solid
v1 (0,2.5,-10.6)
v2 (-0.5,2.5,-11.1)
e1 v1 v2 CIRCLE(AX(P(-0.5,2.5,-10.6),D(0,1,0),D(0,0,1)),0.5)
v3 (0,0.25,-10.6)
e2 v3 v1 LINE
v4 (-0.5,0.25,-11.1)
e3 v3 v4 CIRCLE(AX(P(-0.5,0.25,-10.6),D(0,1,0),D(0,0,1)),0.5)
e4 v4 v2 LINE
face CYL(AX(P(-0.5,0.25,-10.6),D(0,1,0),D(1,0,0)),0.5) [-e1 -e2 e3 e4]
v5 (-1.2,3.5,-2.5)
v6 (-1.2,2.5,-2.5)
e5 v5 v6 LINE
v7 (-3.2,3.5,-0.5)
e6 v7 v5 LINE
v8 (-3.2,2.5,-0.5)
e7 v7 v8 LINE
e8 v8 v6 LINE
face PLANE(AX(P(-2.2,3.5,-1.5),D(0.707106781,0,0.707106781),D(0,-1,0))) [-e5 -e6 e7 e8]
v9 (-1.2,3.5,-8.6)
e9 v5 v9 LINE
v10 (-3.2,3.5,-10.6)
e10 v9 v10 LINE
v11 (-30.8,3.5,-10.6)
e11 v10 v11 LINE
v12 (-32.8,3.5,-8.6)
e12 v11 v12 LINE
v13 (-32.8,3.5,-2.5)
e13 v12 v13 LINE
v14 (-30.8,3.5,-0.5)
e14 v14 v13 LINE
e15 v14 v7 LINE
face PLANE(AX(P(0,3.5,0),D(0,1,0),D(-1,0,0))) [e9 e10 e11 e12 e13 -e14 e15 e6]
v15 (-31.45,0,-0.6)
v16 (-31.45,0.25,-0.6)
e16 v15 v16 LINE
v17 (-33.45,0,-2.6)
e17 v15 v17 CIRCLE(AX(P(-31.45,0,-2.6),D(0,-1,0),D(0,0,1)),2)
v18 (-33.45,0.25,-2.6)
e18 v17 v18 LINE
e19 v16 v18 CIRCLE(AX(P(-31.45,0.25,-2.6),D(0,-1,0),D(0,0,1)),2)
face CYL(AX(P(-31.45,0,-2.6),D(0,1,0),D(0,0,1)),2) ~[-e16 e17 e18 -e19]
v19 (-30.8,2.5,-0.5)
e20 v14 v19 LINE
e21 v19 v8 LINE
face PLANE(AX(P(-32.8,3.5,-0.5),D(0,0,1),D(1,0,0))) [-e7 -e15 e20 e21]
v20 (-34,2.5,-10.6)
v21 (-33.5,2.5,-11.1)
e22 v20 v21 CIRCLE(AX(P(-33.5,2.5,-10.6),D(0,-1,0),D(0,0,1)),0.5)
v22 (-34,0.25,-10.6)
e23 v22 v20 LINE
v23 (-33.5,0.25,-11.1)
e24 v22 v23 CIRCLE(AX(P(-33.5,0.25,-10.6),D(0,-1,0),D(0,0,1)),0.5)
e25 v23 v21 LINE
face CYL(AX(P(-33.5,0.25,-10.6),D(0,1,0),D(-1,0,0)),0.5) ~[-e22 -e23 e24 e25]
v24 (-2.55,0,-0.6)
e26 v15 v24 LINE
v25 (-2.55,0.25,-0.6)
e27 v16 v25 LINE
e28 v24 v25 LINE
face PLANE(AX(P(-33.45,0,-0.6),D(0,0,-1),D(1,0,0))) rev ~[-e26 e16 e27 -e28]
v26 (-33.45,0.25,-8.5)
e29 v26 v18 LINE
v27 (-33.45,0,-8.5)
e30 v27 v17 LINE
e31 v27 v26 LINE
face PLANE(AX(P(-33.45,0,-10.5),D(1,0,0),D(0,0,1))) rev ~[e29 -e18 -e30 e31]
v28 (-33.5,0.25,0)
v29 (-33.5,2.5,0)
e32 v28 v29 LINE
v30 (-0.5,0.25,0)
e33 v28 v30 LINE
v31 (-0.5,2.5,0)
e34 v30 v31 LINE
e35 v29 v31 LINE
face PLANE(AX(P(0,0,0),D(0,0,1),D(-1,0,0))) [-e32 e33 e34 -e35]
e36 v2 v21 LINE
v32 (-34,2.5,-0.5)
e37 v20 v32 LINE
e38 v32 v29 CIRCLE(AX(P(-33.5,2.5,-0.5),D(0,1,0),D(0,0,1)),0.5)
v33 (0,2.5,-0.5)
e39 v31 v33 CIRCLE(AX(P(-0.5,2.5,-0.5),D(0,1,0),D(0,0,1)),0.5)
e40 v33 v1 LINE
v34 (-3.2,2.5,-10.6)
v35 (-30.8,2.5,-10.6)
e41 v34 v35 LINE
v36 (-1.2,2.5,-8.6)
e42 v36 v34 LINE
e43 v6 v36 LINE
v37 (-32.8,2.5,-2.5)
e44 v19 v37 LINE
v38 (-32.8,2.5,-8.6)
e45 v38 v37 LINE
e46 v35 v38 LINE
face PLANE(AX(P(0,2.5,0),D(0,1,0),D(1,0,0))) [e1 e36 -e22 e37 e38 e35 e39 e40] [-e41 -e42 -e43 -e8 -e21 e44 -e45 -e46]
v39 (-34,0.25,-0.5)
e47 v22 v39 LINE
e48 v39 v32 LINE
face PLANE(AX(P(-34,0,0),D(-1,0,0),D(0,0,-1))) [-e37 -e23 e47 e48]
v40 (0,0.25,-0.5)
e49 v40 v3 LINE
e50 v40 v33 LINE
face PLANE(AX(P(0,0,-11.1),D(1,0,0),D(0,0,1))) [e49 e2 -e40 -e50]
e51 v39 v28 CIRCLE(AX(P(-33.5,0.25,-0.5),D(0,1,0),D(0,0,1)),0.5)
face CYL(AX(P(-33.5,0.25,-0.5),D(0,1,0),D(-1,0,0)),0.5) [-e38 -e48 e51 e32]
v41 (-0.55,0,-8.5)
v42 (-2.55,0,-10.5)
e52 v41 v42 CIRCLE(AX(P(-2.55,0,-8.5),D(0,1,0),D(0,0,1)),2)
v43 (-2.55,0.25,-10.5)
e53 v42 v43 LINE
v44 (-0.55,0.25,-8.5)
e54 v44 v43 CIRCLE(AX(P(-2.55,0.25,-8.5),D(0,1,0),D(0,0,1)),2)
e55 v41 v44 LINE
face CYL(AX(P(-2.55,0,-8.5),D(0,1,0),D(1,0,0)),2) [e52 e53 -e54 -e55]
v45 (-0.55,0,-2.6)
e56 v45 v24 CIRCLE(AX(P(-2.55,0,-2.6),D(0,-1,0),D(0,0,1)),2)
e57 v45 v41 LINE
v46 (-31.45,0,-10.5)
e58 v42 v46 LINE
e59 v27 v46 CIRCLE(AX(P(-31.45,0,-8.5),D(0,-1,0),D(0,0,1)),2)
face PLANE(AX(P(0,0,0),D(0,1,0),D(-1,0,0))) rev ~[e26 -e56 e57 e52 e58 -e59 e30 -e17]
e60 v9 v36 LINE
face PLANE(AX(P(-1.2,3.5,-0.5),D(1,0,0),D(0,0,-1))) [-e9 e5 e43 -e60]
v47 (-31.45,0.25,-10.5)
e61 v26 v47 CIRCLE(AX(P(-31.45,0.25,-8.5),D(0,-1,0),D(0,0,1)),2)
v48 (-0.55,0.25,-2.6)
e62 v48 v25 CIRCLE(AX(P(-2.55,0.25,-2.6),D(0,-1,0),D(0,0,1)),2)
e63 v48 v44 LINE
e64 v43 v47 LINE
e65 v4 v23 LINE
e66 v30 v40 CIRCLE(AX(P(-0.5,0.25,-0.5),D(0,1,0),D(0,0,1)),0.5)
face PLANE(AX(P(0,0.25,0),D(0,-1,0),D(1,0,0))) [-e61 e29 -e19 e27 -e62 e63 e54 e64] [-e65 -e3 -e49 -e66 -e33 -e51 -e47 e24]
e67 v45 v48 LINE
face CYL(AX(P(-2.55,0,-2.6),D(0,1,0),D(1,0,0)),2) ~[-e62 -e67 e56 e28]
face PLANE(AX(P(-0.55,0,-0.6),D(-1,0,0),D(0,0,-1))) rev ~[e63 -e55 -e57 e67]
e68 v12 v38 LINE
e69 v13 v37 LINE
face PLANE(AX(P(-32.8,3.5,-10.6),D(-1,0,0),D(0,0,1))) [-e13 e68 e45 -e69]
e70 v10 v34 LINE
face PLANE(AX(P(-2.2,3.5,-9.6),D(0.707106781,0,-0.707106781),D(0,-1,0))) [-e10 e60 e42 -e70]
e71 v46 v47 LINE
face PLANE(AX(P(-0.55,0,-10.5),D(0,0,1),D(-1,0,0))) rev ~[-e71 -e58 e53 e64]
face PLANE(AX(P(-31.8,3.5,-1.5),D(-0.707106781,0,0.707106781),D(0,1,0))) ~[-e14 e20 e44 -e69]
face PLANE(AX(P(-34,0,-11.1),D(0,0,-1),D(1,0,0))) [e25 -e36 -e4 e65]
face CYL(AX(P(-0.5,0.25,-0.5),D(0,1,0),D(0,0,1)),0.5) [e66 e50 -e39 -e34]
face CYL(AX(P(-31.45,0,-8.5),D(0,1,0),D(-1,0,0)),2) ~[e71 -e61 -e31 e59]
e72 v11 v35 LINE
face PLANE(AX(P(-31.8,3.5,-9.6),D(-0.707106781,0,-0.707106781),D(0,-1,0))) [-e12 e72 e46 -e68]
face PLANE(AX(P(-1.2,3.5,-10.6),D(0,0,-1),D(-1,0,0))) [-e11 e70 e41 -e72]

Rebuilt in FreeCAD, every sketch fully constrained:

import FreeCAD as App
import Part
import Sketcher


def edges_at(feature, points):
    """Names of the edges that pass closest to the given points."""
    edges = feature.Shape.Edges
    near = lambda p: min(range(len(edges)), key=lambda i: edges[i].distToShape(Part.Vertex(*p))[0])
    return sorted({f"Edge{near(p) + 1}" for p in points})

doc = App.newDocument("Part")
body = doc.addObject("PartDesign::Body", "Body")

# Sketch on XZ plane
sketch1 = body.newObject("Sketcher::SketchObject", "Sketch")
sketch1.AttachmentSupport = (doc.getObject("XZ_Plane"), [""])
sketch1.MapMode = "FlatFace"
sketch1.addGeometry(Part.LineSegment(App.Vector(-34, 0, 0), App.Vector(0, 0, 0)), False)
sketch1.addGeometry(Part.LineSegment(App.Vector(0, 0, 0), App.Vector(0, -11, 0)), False)
sketch1.addGeometry(Part.LineSegment(App.Vector(0, -11, 0), App.Vector(-34, -11, 0)), False)
sketch1.addGeometry(Part.LineSegment(App.Vector(-34, -11, 0), App.Vector(-34, 0, 0)), False)
sketch1.addConstraint(Sketcher.Constraint("Coincident", 0, 2, 1, 1))
sketch1.addConstraint(Sketcher.Constraint("Coincident", 1, 2, 2, 1))
sketch1.addConstraint(Sketcher.Constraint("Coincident", 2, 2, 3, 1))
sketch1.addConstraint(Sketcher.Constraint("Coincident", 3, 2, 0, 1))
sketch1.addConstraint(Sketcher.Constraint("Horizontal", 0))
sketch1.addConstraint(Sketcher.Constraint("Vertical", 1))
sketch1.addConstraint(Sketcher.Constraint("Horizontal", 2))
sketch1.addConstraint(Sketcher.Constraint("Vertical", 3))
sketch1.addConstraint(Sketcher.Constraint("Coincident", 0, 2, -1, 1))
sketch1.addConstraint(Sketcher.Constraint("DistanceX", 0, 1, 0, 2, 34.0))
sketch1.addConstraint(Sketcher.Constraint("DistanceY", 1, 2, 1, 1, 11.1))
pad1 = body.newObject("PartDesign::Pad", "Pad")
pad1.Profile = sketch1
pad1.Length = 3.5
pad1.Reversed = True

# Sketch on XZ plane
sketch2 = body.newObject("Sketcher::SketchObject", "Sketch001")
sketch2.AttachmentSupport = (doc.getObject("XZ_Plane"), [""])
sketch2.MapMode = "FlatFace"
sketch2.AttachmentOffset = App.Placement(App.Vector(0, 0, -3.5), App.Rotation())
sketch2.addGeometry(Part.LineSegment(App.Vector(0, -11, 0), App.Vector(-34, -11, 0)), False)
sketch2.addGeometry(Part.LineSegment(App.Vector(-34, -11, 0), App.Vector(-34, 0, 0)), False)
sketch2.addGeometry(Part.LineSegment(App.Vector(-34, 0, 0), App.Vector(0, 0, 0)), False)
sketch2.addGeometry(Part.LineSegment(App.Vector(0, 0, 0), App.Vector(0, -11, 0)), False)
sketch2.addGeometry(Part.LineSegment(App.Vector(-1, 0, 0), App.Vector(-33, 0, 0)), False)
sketch2.addGeometry(Part.LineSegment(App.Vector(-33, 0, 0), App.Vector(-33, -11, 0)), False)
sketch2.addGeometry(Part.LineSegment(App.Vector(-33, -11, 0), App.Vector(-1, -11, 0)), False)
sketch2.addGeometry(Part.LineSegment(App.Vector(-1, -11, 0), App.Vector(-1, 0, 0)), False)
sketch2.addConstraint(Sketcher.Constraint("Coincident", 0, 2, 1, 1))
sketch2.addConstraint(Sketcher.Constraint("Coincident", 1, 2, 2, 1))
sketch2.addConstraint(Sketcher.Constraint("Coincident", 2, 2, 3, 1))
sketch2.addConstraint(Sketcher.Constraint("Coincident", 3, 2, 0, 1))
sketch2.addConstraint(Sketcher.Constraint("Coincident", 4, 2, 5, 1))
sketch2.addConstraint(Sketcher.Constraint("Coincident", 5, 2, 6, 1))
sketch2.addConstraint(Sketcher.Constraint("Coincident", 6, 2, 7, 1))
sketch2.addConstraint(Sketcher.Constraint("Coincident", 7, 2, 4, 1))
sketch2.addConstraint(Sketcher.Constraint("Horizontal", 0))
sketch2.addConstraint(Sketcher.Constraint("Vertical", 1))
sketch2.addConstraint(Sketcher.Constraint("Horizontal", 2))
sketch2.addConstraint(Sketcher.Constraint("Vertical", 3))
sketch2.addConstraint(Sketcher.Constraint("Horizontal", 4))
sketch2.addConstraint(Sketcher.Constraint("Vertical", 5))
sketch2.addConstraint(Sketcher.Constraint("Horizontal", 6))
sketch2.addConstraint(Sketcher.Constraint("Vertical", 7))
sketch2.addConstraint(Sketcher.Constraint("Coincident", 2, 2, -1, 1))
sketch2.addConstraint(Sketcher.Constraint("DistanceY", 4, 2, -1, 1, 0.5))
sketch2.addConstraint(Sketcher.Constraint("DistanceX", 6, 2, -1, 1, 1.2))
sketch2.addConstraint(Sketcher.Constraint("DistanceX", 1, 2, 4, 2, 1.2))
sketch2.addConstraint(Sketcher.Constraint("DistanceY", 0, 2, 5, 2, 0.5))
sketch2.addConstraint(Sketcher.Constraint("DistanceX", 0, 2, 0, 1, 34.0))
sketch2.addConstraint(Sketcher.Constraint("DistanceY", 1, 1, 1, 2, 11.1))
pocket1 = body.newObject("PartDesign::Pocket", "Pocket")
pocket1.Profile = sketch2
pocket1.Length = 1
pocket1.Reversed = True

# Sketch on XZ plane
sketch3 = body.newObject("Sketcher::SketchObject", "Sketch002")
sketch3.AttachmentSupport = (doc.getObject("XZ_Plane"), [""])
sketch3.MapMode = "FlatFace"
sketch3.addGeometry(Part.LineSegment(App.Vector(-34, 0, 0), App.Vector(-34, -11, 0)), False)
sketch3.addGeometry(Part.LineSegment(App.Vector(-34, -11, 0), App.Vector(0, -11, 0)), False)
sketch3.addGeometry(Part.LineSegment(App.Vector(0, -11, 0), App.Vector(0, 0, 0)), False)
sketch3.addGeometry(Part.LineSegment(App.Vector(0, 0, 0), App.Vector(-34, 0, 0)), False)
sketch3.addGeometry(Part.LineSegment(App.Vector(-1, -1, 0), App.Vector(-1, -10, 0)), False)
sketch3.addGeometry(Part.LineSegment(App.Vector(-1, -10, 0), App.Vector(-33, -10, 0)), False)
sketch3.addGeometry(Part.LineSegment(App.Vector(-33, -10, 0), App.Vector(-33, -1, 0)), False)
sketch3.addGeometry(Part.LineSegment(App.Vector(-33, -1, 0), App.Vector(-1, -1, 0)), False)
sketch3.addConstraint(Sketcher.Constraint("Coincident", 0, 2, 1, 1))
sketch3.addConstraint(Sketcher.Constraint("Coincident", 1, 2, 2, 1))
sketch3.addConstraint(Sketcher.Constraint("Coincident", 2, 2, 3, 1))
sketch3.addConstraint(Sketcher.Constraint("Coincident", 3, 2, 0, 1))
sketch3.addConstraint(Sketcher.Constraint("Coincident", 4, 2, 5, 1))
sketch3.addConstraint(Sketcher.Constraint("Coincident", 5, 2, 6, 1))
sketch3.addConstraint(Sketcher.Constraint("Coincident", 6, 2, 7, 1))
sketch3.addConstraint(Sketcher.Constraint("Coincident", 7, 2, 4, 1))
sketch3.addConstraint(Sketcher.Constraint("Vertical", 0))
sketch3.addConstraint(Sketcher.Constraint("Horizontal", 1))
sketch3.addConstraint(Sketcher.Constraint("Vertical", 2))
sketch3.addConstraint(Sketcher.Constraint("Horizontal", 3))
sketch3.addConstraint(Sketcher.Constraint("Vertical", 4))
sketch3.addConstraint(Sketcher.Constraint("Horizontal", 5))
sketch3.addConstraint(Sketcher.Constraint("Vertical", 6))
sketch3.addConstraint(Sketcher.Constraint("Horizontal", 7))
sketch3.addConstraint(Sketcher.Constraint("Coincident", 2, 2, -1, 1))
sketch3.addConstraint(Sketcher.Constraint("DistanceX", 5, 2, 5, 1, 32.9))
sketch3.addConstraint(Sketcher.Constraint("DistanceY", 4, 2, 4, 1, 9.9))
sketch3.addConstraint(Sketcher.Constraint("DistanceX", 1, 1, 1, 2, 34.0))
sketch3.addConstraint(Sketcher.Constraint("DistanceY", 0, 2, 0, 1, 11.1))
sketch3.addConstraint(Sketcher.Constraint("DistanceY", 4, 2, -1, 1, 10.5))
sketch3.addConstraint(Sketcher.Constraint("DistanceX", 4, 2, -1, 1, 0.55))
pocket2 = body.newObject("PartDesign::Pocket", "Pocket001")
pocket2.Profile = sketch3
pocket2.Length = 0.25
doc.recompute()

fillet = body.newObject("PartDesign::Fillet", "Fillet")
fillet.Base = (pocket2, edges_at(pocket2, [
    (-33.45, 0.125, -10.5),
    (-33.45, 0.125, -0.6),
    (-0.55, 0.125, -0.6),
    (-0.55, 0.125, -10.5),
]))
fillet.Radius = 2
doc.recompute()

fillet2 = body.newObject("PartDesign::Fillet", "Fillet001")
fillet2.Base = (fillet, edges_at(fillet, [
    (-34, 1.375, 0),
    (-34, 1.375, -11.1),
    (0, 1.375, 0),
    (0, 1.375, -11.1),
]))
fillet2.Radius = 0.5
doc.recompute()

chamfer = body.newObject("PartDesign::Chamfer", "Chamfer")
chamfer.Base = (fillet2, edges_at(fillet2, [
    (-1.2, 3, -0.5),
    (-1.2, 3, -10.6),
    (-32.8, 3, -0.5),
    (-32.8, 3, -10.6),
]))
chamfer.Size = 2

doc.recompute()
